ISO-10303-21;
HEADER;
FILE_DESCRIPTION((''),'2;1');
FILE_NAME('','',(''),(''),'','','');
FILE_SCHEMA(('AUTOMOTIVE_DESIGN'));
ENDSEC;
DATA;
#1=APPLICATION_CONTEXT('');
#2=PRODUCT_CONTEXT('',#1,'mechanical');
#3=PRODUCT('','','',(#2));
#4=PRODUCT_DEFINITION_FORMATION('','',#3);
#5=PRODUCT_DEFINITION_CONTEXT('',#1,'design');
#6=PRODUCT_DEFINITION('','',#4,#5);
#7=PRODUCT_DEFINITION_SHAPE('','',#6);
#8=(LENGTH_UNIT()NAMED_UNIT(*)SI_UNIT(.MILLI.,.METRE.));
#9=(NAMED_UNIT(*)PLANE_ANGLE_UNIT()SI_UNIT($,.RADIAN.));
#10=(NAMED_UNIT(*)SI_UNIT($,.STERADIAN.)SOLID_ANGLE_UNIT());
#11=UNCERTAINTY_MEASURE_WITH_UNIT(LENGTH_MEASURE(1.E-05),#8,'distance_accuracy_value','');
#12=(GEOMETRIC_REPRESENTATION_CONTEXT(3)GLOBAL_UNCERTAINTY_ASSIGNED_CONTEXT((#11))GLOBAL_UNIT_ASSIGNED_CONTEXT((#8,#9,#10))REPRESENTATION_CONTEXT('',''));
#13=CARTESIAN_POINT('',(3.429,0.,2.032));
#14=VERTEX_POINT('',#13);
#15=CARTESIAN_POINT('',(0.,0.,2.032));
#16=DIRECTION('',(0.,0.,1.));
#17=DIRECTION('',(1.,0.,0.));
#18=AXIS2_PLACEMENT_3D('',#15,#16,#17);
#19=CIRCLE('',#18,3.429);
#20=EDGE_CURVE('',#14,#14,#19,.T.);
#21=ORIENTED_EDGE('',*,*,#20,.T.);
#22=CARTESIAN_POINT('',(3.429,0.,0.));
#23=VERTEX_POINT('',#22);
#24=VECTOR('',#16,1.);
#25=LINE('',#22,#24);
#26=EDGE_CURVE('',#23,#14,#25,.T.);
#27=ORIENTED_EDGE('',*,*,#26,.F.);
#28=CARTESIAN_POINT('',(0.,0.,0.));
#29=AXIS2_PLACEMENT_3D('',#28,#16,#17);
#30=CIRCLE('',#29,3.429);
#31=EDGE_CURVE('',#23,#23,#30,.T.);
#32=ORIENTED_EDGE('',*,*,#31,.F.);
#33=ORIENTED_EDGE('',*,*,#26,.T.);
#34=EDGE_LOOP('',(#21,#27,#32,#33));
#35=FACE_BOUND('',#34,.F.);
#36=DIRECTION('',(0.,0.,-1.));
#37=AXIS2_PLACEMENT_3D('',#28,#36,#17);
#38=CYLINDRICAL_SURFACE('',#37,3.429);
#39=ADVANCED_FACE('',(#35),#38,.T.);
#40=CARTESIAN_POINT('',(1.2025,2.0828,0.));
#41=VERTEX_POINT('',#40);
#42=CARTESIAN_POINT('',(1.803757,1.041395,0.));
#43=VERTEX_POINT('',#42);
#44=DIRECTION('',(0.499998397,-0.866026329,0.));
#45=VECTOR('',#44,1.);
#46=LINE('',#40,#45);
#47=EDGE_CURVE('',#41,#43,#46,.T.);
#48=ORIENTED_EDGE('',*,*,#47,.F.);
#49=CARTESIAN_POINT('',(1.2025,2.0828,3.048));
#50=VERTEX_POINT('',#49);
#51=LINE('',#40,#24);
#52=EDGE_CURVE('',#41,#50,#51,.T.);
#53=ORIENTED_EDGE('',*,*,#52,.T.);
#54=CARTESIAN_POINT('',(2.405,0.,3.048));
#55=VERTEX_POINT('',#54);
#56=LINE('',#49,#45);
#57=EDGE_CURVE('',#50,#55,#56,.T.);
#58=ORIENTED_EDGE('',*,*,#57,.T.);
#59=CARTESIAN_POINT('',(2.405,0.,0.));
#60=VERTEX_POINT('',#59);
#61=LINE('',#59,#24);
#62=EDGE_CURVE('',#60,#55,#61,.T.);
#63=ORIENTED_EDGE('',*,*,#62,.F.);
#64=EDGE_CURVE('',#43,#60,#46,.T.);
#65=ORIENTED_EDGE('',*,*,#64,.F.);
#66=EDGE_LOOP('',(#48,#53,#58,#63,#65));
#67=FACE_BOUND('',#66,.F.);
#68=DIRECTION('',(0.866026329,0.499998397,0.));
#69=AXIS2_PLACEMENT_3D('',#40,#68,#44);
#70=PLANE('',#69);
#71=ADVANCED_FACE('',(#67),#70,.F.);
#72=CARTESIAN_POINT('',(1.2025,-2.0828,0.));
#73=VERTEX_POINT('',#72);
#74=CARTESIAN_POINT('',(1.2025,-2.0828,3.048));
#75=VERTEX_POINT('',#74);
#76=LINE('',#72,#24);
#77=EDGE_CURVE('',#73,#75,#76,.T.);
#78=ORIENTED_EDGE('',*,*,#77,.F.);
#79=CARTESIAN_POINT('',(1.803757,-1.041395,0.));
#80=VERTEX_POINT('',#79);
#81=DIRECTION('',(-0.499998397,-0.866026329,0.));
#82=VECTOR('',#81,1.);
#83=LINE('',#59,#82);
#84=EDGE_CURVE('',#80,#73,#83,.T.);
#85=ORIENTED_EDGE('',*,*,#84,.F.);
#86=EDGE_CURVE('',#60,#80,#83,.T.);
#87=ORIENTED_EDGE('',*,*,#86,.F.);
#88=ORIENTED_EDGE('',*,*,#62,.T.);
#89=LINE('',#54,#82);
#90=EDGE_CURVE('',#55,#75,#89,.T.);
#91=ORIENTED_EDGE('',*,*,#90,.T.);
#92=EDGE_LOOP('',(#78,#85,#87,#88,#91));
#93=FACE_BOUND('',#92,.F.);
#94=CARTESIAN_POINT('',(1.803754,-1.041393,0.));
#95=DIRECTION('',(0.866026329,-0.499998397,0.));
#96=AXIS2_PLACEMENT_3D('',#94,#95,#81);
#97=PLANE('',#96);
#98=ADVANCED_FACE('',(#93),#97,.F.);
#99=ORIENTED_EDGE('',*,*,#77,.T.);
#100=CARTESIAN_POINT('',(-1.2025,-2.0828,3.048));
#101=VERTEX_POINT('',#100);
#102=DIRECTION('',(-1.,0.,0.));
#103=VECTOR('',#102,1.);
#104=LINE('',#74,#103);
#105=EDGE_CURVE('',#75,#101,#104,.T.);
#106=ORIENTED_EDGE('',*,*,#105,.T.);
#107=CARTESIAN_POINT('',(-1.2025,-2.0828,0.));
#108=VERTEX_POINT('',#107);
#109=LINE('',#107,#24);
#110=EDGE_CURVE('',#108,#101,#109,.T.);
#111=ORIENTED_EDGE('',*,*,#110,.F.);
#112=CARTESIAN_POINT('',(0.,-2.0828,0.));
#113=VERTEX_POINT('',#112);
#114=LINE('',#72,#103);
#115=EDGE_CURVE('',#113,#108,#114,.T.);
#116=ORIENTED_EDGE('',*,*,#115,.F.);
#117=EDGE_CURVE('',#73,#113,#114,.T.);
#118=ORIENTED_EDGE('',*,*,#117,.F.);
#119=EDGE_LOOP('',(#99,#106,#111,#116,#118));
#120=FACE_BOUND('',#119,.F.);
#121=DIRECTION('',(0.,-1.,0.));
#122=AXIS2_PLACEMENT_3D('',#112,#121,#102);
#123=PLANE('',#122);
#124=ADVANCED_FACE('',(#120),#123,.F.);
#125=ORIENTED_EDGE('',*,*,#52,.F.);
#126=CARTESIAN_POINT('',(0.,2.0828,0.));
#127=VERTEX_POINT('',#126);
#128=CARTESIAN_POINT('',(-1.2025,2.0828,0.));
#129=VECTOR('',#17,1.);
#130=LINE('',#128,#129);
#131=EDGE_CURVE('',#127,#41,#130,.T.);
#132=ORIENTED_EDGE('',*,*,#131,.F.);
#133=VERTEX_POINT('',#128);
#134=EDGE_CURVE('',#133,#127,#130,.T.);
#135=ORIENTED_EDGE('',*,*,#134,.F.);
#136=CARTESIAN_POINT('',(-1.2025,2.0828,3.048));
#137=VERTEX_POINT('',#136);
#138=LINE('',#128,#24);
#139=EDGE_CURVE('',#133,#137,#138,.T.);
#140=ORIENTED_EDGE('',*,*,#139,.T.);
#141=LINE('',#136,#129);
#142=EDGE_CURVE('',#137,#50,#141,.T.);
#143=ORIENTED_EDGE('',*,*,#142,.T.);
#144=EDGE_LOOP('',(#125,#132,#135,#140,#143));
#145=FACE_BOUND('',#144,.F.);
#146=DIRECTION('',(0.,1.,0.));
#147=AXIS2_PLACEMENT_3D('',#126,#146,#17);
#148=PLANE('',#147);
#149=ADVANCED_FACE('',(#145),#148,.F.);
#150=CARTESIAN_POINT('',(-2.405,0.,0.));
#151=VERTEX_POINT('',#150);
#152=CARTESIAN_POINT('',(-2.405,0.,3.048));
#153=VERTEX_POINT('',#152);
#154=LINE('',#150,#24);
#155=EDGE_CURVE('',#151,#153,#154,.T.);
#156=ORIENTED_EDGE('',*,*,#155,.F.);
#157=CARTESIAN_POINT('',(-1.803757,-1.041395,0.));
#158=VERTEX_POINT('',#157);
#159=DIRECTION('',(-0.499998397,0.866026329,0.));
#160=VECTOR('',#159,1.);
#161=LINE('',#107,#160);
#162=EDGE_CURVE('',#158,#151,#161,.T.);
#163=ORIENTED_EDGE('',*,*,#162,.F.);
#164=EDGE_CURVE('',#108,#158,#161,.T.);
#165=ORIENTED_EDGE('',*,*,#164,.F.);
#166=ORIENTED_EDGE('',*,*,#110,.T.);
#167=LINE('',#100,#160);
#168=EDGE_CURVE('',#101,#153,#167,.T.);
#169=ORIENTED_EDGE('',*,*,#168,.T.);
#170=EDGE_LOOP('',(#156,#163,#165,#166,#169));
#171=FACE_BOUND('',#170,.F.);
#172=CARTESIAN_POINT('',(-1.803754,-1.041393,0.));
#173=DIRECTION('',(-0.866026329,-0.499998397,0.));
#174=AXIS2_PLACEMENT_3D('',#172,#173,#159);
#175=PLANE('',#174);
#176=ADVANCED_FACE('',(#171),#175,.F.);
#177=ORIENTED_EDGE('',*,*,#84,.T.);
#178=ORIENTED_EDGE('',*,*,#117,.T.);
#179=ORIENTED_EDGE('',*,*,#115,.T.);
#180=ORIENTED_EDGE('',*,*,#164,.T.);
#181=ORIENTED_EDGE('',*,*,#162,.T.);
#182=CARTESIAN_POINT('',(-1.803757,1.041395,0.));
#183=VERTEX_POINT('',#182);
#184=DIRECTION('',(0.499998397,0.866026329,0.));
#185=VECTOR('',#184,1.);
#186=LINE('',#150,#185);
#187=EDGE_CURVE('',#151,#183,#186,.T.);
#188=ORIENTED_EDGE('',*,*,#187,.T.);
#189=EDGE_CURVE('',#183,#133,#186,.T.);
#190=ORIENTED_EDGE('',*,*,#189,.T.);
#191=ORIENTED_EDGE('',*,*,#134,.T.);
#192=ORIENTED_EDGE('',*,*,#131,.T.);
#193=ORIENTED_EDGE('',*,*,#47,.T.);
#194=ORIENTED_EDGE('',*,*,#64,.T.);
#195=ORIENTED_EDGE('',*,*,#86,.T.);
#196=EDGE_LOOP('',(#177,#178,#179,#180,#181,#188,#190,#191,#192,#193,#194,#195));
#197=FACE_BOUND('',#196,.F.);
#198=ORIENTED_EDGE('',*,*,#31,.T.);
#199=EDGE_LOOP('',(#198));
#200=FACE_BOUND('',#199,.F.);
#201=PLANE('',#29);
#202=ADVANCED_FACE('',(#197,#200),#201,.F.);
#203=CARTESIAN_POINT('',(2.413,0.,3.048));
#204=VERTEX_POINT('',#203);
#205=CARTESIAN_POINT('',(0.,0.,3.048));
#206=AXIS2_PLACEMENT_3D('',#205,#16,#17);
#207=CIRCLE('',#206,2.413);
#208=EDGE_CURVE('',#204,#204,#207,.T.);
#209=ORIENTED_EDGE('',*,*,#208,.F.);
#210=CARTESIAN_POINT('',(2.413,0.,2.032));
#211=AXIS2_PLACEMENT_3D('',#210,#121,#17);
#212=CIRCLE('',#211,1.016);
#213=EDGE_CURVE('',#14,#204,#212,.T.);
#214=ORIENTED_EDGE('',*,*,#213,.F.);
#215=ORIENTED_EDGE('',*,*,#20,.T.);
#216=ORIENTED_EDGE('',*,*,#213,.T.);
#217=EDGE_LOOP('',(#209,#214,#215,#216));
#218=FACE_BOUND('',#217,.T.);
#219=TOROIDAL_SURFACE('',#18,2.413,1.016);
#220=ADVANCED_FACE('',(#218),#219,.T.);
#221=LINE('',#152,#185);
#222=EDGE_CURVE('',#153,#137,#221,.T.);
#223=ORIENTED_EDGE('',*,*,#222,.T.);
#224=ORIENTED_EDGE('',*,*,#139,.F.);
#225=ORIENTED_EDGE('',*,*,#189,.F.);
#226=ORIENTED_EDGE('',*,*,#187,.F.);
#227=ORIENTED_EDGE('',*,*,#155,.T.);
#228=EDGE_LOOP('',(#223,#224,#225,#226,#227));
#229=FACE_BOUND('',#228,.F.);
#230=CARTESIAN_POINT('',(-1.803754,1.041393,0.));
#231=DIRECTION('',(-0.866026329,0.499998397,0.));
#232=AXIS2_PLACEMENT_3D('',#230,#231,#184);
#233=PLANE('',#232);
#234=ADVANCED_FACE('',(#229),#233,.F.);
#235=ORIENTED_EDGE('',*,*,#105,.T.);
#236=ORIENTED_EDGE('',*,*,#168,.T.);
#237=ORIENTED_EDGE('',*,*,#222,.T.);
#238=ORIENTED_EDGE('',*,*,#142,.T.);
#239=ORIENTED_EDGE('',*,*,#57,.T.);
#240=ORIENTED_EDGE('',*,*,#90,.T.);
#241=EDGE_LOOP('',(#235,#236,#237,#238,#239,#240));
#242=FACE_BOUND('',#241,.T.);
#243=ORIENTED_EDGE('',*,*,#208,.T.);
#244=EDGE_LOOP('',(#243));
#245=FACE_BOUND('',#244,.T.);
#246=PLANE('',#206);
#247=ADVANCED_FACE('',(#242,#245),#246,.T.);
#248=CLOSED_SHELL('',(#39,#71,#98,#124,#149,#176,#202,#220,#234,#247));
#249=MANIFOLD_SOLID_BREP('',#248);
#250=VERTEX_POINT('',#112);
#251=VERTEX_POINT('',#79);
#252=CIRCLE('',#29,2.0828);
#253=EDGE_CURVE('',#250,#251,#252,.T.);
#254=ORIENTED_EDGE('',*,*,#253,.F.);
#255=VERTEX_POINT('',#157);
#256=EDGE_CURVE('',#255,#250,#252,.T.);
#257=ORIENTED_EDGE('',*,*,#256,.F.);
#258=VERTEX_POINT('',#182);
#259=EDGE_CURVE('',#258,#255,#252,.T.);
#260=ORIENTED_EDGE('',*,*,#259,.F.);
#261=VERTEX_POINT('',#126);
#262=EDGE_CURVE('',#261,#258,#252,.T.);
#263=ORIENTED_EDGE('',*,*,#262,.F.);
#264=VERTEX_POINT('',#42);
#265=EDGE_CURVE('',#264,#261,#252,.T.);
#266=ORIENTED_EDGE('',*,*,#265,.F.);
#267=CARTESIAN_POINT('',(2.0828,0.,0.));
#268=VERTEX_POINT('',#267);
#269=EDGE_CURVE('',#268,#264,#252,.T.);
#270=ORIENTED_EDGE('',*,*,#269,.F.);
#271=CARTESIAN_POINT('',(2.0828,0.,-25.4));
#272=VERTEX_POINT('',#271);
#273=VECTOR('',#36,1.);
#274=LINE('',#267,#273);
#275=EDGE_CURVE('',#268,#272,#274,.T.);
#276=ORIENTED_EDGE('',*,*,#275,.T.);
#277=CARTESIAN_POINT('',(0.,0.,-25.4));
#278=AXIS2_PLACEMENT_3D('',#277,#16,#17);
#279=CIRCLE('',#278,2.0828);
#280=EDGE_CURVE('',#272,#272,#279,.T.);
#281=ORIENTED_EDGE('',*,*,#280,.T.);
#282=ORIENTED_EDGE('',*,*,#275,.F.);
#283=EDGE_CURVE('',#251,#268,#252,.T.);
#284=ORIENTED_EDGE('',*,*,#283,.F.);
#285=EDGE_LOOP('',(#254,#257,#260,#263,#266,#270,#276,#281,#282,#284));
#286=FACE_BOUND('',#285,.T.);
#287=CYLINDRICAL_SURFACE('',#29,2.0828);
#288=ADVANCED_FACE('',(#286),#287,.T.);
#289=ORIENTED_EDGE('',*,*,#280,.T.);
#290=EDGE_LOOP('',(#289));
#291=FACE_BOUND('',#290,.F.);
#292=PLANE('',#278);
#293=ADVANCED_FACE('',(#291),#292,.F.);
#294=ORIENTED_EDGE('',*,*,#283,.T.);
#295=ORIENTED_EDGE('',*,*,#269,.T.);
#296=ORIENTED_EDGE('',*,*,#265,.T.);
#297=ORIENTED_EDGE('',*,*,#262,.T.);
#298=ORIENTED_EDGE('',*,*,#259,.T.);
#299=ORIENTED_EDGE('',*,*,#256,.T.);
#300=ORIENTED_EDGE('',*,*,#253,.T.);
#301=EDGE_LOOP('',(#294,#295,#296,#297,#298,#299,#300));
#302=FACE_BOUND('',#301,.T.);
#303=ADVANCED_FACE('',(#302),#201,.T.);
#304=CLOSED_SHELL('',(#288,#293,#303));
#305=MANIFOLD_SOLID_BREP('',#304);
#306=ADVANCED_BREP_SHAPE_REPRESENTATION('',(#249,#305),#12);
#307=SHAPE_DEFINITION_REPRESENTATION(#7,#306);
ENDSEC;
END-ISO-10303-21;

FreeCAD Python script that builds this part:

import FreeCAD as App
import Part
import Sketcher
from FreeCAD import Vector
Q = App.Units.Quantity


def edges_at(feature, points):
    """Names of the edges that pass closest to the given points."""
    edges = feature.Shape.Edges
    near = lambda p: min(range(len(edges)), key=lambda i: edges[i].distToShape(Part.Vertex(*p))[0])
    return sorted({f"Edge{near(p) + 1}" for p in points})


def add_polygon(sketch, points):
    """Adds a closed chain of lines whose ends are joined by coincident constraints."""
    first, n = sketch.GeometryCount, len(points)
    for a, b in zip(points, points[1:] + points[:1]):
        sketch.addGeometry(Part.LineSegment(App.Vector(*a, 0), App.Vector(*b, 0)), False)
    for i in range(n):
        sketch.addConstraint(Sketcher.Constraint("Coincident", first + i, 2, first + (i + 1) % n, 1))

doc = App.newDocument("Part")
body = doc.addObject("PartDesign::Body", "Body")
body.AllowCompound = True

# Sketch on XY plane
sketch1 = body.newObject("Sketcher::SketchObject", "Sketch")
sketch1.AttachmentSupport = (doc.getObject("XY_Plane"), [""])
sketch1.MapMode = "FlatFace"
sketch1.addGeometry(Part.Circle(Vector(0, 0, 0), Vector(0, 0, 1), 2.1), False)
sketch1.addConstraint([
    Sketcher.Constraint("Coincident", 0, 3, -1, 1),
    Sketcher.Constraint("Diameter", 0, Q("0.164 in")),
])
pad1 = body.newObject("PartDesign::Pad", "Pad")
pad1.Profile = sketch1
pad1.Length = Q("1 in")
pad1.Reversed = True

# Sketch on XY plane
sketch2 = body.newObject("Sketcher::SketchObject", "Sketch001")
sketch2.AttachmentSupport = (doc.getObject("XY_Plane"), [""])
sketch2.MapMode = "FlatFace"
sketch2.addGeometry(Part.Circle(Vector(0, 0, 0), Vector(0, 0, 1), 3.4), False)  # 0
add_polygon(sketch2, [(1.2, 2.1), (2.4, 0), (1.2, -2.1), (-1.2, -2.1), (-2.4, 0), (-1.2, 2.1)])  # lines 1-6
sketch2.addConstraint([
    Sketcher.Constraint("Horizontal", 3),
    Sketcher.Constraint("Horizontal", 6),
    Sketcher.Constraint("Coincident", 0, 3, -1, 1),
    Sketcher.Constraint("Symmetric", 1, 2, 4, 2, -1, 1),
    Sketcher.Constraint("Symmetric", 2, 2, 5, 2, -1, 1),
    Sketcher.Constraint("PointOnObject", 1, 2, -1),
    Sketcher.Constraint("Parallel", 1, 4),
    Sketcher.Constraint("Vertical", 3, 2, 5, 2),
    Sketcher.Constraint("Diameter", 0, Q("0.27 in")),
    Sketcher.Constraint("Angle", 1, Q("-60 deg")),
    Sketcher.Constraint("DistanceY", 3, 2, 5, 2, Q("0.164 in")),
    Sketcher.Constraint("DistanceX", 3, 2, 3, 1, Q("2.405 mm")),
])
pad2 = body.newObject("PartDesign::Pad", "Pad001")
pad2.Profile = sketch2
pad2.Length = Q("0.12 in")
doc.recompute()

fillet = body.newObject("PartDesign::Fillet", "Fillet")
fillet.Base = (pad2, edges_at(pad2, [(-3.429, 0, 3.048)]))
fillet.Radius = Q("0.04 in")

doc.recompute()
